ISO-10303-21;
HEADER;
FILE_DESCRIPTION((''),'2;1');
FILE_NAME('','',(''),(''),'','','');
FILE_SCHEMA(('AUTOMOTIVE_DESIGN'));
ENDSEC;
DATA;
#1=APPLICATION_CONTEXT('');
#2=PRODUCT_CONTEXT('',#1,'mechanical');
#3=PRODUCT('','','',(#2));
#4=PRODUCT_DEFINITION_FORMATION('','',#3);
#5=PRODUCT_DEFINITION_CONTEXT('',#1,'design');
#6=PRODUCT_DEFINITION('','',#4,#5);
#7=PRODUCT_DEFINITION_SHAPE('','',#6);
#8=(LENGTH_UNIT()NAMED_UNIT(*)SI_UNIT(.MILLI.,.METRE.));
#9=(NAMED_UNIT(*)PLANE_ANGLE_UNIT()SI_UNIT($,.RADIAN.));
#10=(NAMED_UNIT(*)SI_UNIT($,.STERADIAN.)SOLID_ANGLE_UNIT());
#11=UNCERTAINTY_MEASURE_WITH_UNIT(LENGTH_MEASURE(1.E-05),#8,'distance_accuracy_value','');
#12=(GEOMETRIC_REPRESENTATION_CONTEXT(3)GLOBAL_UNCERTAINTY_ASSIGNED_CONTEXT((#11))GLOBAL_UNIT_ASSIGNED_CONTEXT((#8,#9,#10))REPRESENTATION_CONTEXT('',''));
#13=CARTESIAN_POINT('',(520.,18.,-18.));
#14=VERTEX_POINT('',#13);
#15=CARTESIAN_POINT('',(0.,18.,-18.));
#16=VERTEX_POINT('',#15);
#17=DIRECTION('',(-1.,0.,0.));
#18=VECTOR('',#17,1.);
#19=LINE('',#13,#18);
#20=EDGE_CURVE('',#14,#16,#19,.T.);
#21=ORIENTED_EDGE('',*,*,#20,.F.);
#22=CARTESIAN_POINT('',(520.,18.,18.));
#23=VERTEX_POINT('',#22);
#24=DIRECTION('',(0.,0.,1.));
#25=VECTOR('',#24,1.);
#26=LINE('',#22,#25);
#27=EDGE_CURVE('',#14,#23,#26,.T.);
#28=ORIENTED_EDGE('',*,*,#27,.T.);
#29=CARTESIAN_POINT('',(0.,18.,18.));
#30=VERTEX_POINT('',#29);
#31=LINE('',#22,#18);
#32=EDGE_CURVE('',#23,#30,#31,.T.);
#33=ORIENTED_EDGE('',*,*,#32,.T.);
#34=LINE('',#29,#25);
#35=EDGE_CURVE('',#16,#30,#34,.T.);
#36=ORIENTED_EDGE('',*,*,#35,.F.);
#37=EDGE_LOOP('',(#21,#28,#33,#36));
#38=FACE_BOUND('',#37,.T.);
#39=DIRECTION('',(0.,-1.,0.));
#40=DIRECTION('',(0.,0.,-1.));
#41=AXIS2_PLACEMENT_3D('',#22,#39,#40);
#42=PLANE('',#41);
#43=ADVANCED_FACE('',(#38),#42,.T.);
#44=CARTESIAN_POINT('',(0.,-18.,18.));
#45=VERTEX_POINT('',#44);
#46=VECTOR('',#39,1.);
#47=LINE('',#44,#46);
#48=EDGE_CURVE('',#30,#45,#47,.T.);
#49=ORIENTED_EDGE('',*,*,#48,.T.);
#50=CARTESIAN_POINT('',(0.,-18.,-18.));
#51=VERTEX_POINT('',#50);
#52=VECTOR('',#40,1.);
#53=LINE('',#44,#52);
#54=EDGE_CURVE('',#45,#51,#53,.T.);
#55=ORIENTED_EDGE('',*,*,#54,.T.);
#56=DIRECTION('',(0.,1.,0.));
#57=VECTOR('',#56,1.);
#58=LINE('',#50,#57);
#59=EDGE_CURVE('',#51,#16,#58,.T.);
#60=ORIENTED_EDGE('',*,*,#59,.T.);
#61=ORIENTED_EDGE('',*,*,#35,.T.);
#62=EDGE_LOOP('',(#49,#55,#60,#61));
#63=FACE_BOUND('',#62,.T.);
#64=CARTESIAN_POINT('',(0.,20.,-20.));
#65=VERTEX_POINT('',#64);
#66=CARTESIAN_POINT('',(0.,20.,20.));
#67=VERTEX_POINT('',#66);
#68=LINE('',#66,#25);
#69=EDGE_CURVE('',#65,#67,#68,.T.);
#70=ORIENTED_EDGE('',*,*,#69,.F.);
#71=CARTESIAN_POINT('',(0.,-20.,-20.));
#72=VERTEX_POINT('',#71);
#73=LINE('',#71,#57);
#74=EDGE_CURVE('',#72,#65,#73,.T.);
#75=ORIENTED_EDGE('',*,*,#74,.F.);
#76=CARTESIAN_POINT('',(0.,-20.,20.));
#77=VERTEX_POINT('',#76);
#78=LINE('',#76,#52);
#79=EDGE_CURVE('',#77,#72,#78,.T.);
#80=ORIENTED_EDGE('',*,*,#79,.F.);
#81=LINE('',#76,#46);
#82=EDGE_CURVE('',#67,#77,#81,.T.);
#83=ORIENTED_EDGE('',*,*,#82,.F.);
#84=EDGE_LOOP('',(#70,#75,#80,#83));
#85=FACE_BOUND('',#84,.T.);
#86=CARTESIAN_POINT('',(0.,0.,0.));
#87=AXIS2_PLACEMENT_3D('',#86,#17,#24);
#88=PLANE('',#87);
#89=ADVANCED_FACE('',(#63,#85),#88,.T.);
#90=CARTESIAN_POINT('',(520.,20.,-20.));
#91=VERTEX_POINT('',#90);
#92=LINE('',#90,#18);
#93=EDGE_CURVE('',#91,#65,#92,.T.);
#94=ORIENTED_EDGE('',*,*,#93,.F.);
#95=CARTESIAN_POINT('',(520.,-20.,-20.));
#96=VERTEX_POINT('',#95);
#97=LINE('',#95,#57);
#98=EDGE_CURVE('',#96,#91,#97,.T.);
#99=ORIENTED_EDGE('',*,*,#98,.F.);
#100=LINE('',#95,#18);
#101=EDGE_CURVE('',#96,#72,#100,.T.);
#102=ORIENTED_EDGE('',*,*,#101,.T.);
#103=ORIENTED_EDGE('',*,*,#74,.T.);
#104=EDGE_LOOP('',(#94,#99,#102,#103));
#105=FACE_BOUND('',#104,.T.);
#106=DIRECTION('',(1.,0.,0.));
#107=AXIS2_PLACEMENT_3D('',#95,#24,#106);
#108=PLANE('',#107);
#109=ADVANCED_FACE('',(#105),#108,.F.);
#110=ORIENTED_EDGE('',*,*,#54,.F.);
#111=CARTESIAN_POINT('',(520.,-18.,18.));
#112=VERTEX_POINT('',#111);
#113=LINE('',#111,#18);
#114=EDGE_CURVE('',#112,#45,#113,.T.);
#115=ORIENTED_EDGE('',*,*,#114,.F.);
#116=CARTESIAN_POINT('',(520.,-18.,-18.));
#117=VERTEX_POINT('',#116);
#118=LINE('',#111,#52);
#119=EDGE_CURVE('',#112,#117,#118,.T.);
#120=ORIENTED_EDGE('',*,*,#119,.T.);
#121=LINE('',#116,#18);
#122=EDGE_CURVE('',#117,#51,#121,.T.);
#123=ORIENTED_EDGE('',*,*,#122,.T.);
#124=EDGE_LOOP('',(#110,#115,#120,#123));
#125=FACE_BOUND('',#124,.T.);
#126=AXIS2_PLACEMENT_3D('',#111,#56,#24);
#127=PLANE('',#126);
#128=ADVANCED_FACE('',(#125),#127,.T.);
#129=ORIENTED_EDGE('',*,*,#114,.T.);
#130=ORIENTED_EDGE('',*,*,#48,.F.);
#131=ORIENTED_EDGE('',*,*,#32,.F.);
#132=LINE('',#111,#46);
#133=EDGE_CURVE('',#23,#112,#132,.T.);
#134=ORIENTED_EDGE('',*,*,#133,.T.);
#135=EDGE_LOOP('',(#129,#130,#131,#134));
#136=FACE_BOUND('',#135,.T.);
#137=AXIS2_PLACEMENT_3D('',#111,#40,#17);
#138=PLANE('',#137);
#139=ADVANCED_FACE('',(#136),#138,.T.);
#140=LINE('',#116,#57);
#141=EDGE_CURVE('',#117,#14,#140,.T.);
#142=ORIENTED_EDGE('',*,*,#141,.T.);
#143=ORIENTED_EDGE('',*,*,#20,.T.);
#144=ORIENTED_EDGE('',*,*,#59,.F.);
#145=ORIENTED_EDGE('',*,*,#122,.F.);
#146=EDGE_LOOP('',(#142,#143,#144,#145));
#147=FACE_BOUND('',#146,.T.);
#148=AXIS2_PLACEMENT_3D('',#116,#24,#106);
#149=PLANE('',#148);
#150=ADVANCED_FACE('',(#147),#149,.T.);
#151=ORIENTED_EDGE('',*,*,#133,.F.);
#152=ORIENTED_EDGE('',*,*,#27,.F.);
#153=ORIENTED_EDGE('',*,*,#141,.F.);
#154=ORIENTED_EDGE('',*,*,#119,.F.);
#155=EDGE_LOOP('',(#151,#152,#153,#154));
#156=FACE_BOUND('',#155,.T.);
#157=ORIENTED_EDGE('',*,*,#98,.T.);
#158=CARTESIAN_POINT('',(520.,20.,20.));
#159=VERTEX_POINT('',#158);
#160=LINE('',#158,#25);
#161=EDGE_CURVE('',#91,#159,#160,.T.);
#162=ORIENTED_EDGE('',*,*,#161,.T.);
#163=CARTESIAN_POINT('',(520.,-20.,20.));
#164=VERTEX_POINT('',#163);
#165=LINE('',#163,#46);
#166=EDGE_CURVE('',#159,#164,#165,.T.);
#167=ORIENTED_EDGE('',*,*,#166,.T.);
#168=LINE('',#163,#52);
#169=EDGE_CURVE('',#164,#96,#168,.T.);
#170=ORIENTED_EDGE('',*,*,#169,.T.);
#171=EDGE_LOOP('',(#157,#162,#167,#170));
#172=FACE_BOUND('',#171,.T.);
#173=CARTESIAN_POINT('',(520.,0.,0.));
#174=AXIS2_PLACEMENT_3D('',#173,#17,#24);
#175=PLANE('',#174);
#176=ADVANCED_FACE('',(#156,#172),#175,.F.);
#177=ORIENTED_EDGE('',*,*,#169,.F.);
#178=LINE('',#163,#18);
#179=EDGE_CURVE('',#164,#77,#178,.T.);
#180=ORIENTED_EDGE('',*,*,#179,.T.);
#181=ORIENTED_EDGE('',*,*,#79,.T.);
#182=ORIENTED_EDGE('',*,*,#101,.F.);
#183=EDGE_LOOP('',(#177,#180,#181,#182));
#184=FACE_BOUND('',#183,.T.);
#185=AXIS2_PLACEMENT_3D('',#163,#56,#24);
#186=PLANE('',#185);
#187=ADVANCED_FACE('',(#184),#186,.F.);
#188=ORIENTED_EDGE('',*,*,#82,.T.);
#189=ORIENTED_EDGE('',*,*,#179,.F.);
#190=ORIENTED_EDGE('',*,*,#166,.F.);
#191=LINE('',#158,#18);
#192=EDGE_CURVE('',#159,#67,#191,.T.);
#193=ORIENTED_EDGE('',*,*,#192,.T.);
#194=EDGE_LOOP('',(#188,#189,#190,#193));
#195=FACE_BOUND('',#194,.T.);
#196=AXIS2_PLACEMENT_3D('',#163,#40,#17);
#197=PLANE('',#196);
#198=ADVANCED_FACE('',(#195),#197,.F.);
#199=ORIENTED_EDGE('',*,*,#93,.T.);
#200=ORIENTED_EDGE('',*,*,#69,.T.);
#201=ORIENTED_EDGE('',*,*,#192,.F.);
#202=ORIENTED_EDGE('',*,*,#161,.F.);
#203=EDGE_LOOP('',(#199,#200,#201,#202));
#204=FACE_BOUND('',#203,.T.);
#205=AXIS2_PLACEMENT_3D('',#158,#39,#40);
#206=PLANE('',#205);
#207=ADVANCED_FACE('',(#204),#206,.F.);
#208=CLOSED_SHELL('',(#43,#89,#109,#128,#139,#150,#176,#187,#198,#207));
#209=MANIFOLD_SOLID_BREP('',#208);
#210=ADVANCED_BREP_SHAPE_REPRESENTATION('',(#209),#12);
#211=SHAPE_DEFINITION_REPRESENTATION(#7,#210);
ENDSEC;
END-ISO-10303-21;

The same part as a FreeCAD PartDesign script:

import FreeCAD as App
import Part
import Sketcher

V = App.Vector

doc = App.newDocument("Part")
body = doc.addObject("PartDesign::Body", "Body")

sketch1 = body.newObject("Sketcher::SketchObject", "Sketch")
sketch1.AttachmentSupport = (doc.getObject("YZ_Plane"), [""])
sketch1.MapMode = "FlatFace"
sketch1.addGeometry(Part.LineSegment(V(20, 20, 0), V(-20, 20, 0)), False)
sketch1.addGeometry(Part.LineSegment(V(-20, 20, 0), V(-20, -20, 0)), False)
sketch1.addGeometry(Part.LineSegment(V(-20, -20, 0), V(20, -20, 0)), False)
sketch1.addGeometry(Part.LineSegment(V(20, -20, 0), V(20, 20, 0)), False)
sketch1.addGeometry(Part.LineSegment(V(-18, -18, 0), V(-18, 18, 0)), False)
sketch1.addGeometry(Part.LineSegment(V(-18, 18, 0), V(18, 18, 0)), False)
sketch1.addGeometry(Part.LineSegment(V(18, 18, 0), V(18, -18, 0)), False)
sketch1.addGeometry(Part.LineSegment(V(18, -18, 0), V(-18, -18, 0)), False)
sketch1.addConstraint(Sketcher.Constraint("Coincident", 0, 2, 1, 1))
sketch1.addConstraint(Sketcher.Constraint("Coincident", 1, 2, 2, 1))
sketch1.addConstraint(Sketcher.Constraint("Coincident", 2, 2, 3, 1))
sketch1.addConstraint(Sketcher.Constraint("Coincident", 3, 2, 0, 1))
sketch1.addConstraint(Sketcher.Constraint("Coincident", 4, 2, 5, 1))
sketch1.addConstraint(Sketcher.Constraint("Coincident", 5, 2, 6, 1))
sketch1.addConstraint(Sketcher.Constraint("Coincident", 6, 2, 7, 1))
sketch1.addConstraint(Sketcher.Constraint("Coincident", 7, 2, 4, 1))
sketch1.addConstraint(Sketcher.Constraint("Horizontal", 0))
sketch1.addConstraint(Sketcher.Constraint("Vertical", 1))
sketch1.addConstraint(Sketcher.Constraint("Horizontal", 2))
sketch1.addConstraint(Sketcher.Constraint("Vertical", 3))
sketch1.addConstraint(Sketcher.Constraint("Vertical", 4))
sketch1.addConstraint(Sketcher.Constraint("Horizontal", 5))
sketch1.addConstraint(Sketcher.Constraint("Vertical", 6))
sketch1.addConstraint(Sketcher.Constraint("Horizontal", 7))
sketch1.addConstraint(Sketcher.Constraint("Symmetric", 0, 2, 2, 2, -1, 1))
sketch1.addConstraint(Sketcher.Constraint("Symmetric", 4, 2, 6, 2, -1, 1))
sketch1.addConstraint(Sketcher.Constraint("Equal", 2, 1))
sketch1.addConstraint(Sketcher.Constraint("Equal", 7, 4))
sketch1.addConstraint(Sketcher.Constraint("DistanceX", 0, 2, 0, 1, 40.0))
sketch1.addConstraint(Sketcher.Constraint("DistanceX", 5, 1, 5, 2, 36.0))
pad1 = body.newObject("PartDesign::Pad", "Pad")
pad1.Profile = sketch1
pad1.Length = 520

doc.recompute()
